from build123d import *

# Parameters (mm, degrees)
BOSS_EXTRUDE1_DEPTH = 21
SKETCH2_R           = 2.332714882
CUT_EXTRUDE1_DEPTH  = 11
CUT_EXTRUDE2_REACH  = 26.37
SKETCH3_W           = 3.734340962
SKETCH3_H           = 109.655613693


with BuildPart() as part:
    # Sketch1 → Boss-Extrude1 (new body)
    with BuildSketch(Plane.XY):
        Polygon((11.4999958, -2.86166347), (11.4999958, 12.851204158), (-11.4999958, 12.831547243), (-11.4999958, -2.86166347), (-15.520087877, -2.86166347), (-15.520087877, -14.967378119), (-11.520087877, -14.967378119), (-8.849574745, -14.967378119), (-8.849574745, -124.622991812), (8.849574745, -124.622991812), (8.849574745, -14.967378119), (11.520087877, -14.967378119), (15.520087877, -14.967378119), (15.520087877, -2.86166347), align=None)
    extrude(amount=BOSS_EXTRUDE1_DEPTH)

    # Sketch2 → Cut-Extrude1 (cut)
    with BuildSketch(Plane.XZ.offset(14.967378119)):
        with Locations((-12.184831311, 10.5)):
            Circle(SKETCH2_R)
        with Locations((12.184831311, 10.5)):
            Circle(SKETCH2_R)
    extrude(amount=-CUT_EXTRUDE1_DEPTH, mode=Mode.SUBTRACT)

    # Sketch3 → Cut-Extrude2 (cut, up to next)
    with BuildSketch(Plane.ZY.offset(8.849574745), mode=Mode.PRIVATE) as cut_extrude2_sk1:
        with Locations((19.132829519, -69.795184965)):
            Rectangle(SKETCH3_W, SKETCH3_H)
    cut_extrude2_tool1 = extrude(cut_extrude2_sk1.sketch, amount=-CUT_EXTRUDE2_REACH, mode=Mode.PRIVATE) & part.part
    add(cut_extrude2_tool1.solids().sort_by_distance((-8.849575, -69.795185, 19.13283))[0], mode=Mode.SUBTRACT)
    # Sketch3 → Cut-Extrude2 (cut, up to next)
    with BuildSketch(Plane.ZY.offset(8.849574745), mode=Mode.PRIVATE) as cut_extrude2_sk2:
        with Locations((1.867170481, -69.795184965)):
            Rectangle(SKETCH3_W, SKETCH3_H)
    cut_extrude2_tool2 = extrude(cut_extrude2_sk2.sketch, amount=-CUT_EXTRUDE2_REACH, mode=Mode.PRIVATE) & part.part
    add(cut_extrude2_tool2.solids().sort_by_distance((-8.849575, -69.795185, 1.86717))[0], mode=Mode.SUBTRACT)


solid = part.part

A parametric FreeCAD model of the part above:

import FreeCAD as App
import Part
import Sketcher
from FreeCAD import Vector

doc = App.newDocument("Part")
body = doc.addObject("PartDesign::Body", "Body")

# Sketch on XY plane
sketch1 = body.newObject("Sketcher::SketchObject", "Sketch")
sketch1.AttachmentSupport = (doc.getObject("XY_Plane"), [""])
sketch1.MapMode = "FlatFace"
sketch1.addGeometry(Part.LineSegment(Vector(11.5, -2.9, 0), Vector(11.5, 12.9, 0)), False)
sketch1.addGeometry(Part.LineSegment(Vector(11.5, 12.9, 0), Vector(-11.5, 12.8, 0)), False)
sketch1.addGeometry(Part.LineSegment(Vector(-11.5, 12.8, 0), Vector(-11.5, -2.9, 0)), False)
sketch1.addGeometry(Part.LineSegment(Vector(-11.5, -2.9, 0), Vector(-15.5, -2.9, 0)), False)
sketch1.addGeometry(Part.LineSegment(Vector(-15.5, -2.9, 0), Vector(-15.5, -15, 0)), False)
sketch1.addGeometry(Part.LineSegment(Vector(-15.5, -15, 0), Vector(-8.8, -15, 0)), False)
sketch1.addGeometry(Part.LineSegment(Vector(-8.8, -15, 0), Vector(-8.8, -124.6, 0)), False)
sketch1.addGeometry(Part.LineSegment(Vector(-8.8, -124.6, 0), Vector(8.8, -124.6, 0)), False)
sketch1.addGeometry(Part.LineSegment(Vector(8.8, -124.6, 0), Vector(8.8, -15, 0)), False)
sketch1.addGeometry(Part.LineSegment(Vector(8.8, -15, 0), Vector(15.5, -15, 0)), False)
sketch1.addGeometry(Part.LineSegment(Vector(15.5, -15, 0), Vector(15.5, -2.9, 0)), False)
sketch1.addGeometry(Part.LineSegment(Vector(15.5, -2.9, 0), Vector(11.5, -2.9, 0)), False)
sketch1.addConstraint(Sketcher.Constraint("Coincident", 0, 2, 1, 1))
sketch1.addConstraint(Sketcher.Constraint("Coincident", 1, 2, 2, 1))
sketch1.addConstraint(Sketcher.Constraint("Coincident", 2, 2, 3, 1))
sketch1.addConstraint(Sketcher.Constraint("Coincident", 3, 2, 4, 1))
sketch1.addConstraint(Sketcher.Constraint("Coincident", 4, 2, 5, 1))
sketch1.addConstraint(Sketcher.Constraint("Coincident", 5, 2, 6, 1))
sketch1.addConstraint(Sketcher.Constraint("Coincident", 6, 2, 7, 1))
sketch1.addConstraint(Sketcher.Constraint("Coincident", 7, 2, 8, 1))
sketch1.addConstraint(Sketcher.Constraint("Coincident", 8, 2, 9, 1))
sketch1.addConstraint(Sketcher.Constraint("Coincident", 9, 2, 10, 1))
sketch1.addConstraint(Sketcher.Constraint("Coincident", 10, 2, 11, 1))
sketch1.addConstraint(Sketcher.Constraint("Coincident", 11, 2, 0, 1))
sketch1.addConstraint(Sketcher.Constraint("Vertical", 0))
sketch1.addConstraint(Sketcher.Constraint("Vertical", 2))
sketch1.addConstraint(Sketcher.Constraint("Horizontal", 3))
sketch1.addConstraint(Sketcher.Constraint("Vertical", 4))
sketch1.addConstraint(Sketcher.Constraint("Horizontal", 5))
sketch1.addConstraint(Sketcher.Constraint("Vertical", 6))
sketch1.addConstraint(Sketcher.Constraint("Horizontal", 7))
sketch1.addConstraint(Sketcher.Constraint("Vertical", 8))
sketch1.addConstraint(Sketcher.Constraint("Horizontal", 9))
sketch1.addConstraint(Sketcher.Constraint("Vertical", 10))
sketch1.addConstraint(Sketcher.Constraint("Horizontal", 11))
sketch1.addConstraint(Sketcher.Constraint("Symmetric", 5, 2, 8, 2, -2))
sketch1.addConstraint(Sketcher.Constraint("Symmetric", 3, 2, 10, 2, -2))
sketch1.addConstraint(Sketcher.Constraint("Equal", 3, 11))
sketch1.addConstraint(Sketcher.Constraint("Distance", 1, 23.0))
sketch1.addConstraint(Sketcher.Constraint("DistanceX", 7, 1, 7, 2, 17.699149))
sketch1.addConstraint(Sketcher.Constraint("DistanceY", 2, 2, 2, 1, 15.693211))
sketch1.addConstraint(Sketcher.Constraint("DistanceX", 3, 2, 3, 1, 4.020092))
sketch1.addConstraint(Sketcher.Constraint("DistanceY", 0, 1, 0, 2, 15.712868))
sketch1.addConstraint(Sketcher.Constraint("DistanceY", 4, 2, 4, 1, 12.105715))
sketch1.addConstraint(Sketcher.Constraint("DistanceY", 6, 2, 6, 1, 109.655614))
sketch1.addConstraint(Sketcher.Constraint("DistanceY", 4, 2, -1, 1, 14.967378))
pad1 = body.newObject("PartDesign::Pad", "Pad")
pad1.Profile = sketch1
pad1.Length = 21

# Sketch on XZ plane
sketch2 = body.newObject("Sketcher::SketchObject", "Sketch001")
sketch2.AttachmentSupport = (doc.getObject("XZ_Plane"), [""])
sketch2.MapMode = "FlatFace"
sketch2.AttachmentOffset = App.Placement(Vector(0, 0, 14.967378), App.Rotation())
sketch2.addGeometry(Part.Circle(Vector(-12.2, 10.5, 0), Vector(0, 0, 1), 2.3), False)
sketch2.addGeometry(Part.Circle(Vector(12.2, 10.5, 0), Vector(0, 0, 1), 2.3), False)
sketch2.addConstraint(Sketcher.Constraint("Equal", 0, 1))
sketch2.addConstraint(Sketcher.Constraint("Symmetric", 0, 3, 1, 3, -2))
sketch2.addConstraint(Sketcher.Constraint("DistanceY", -1, 1, 0, 3, 10.5))
sketch2.addConstraint(Sketcher.Constraint("Diameter", 0, 4.66543))
sketch2.addConstraint(Sketcher.Constraint("DistanceX", 0, 3, -1, 1, 12.184831))
pocket1 = body.newObject("PartDesign::Pocket", "Pocket")
pocket1.Profile = sketch2
pocket1.Length = 11

# Sketch on YZ plane
sketch3 = body.newObject("Sketcher::SketchObject", "Sketch002")
sketch3.AttachmentSupport = (doc.getObject("YZ_Plane"), [""])
sketch3.MapMode = "FlatFace"
sketch3.AttachmentOffset = App.Placement(Vector(0, 0, -8.849575), App.Rotation())
sketch3.addGeometry(Part.LineSegment(Vector(-15, 17.3, 0), Vector(-124.6, 17.3, 0)), False)
sketch3.addGeometry(Part.LineSegment(Vector(-124.6, 17.3, 0), Vector(-124.6, 21, 0)), False)
sketch3.addGeometry(Part.LineSegment(Vector(-124.6, 21, 0), Vector(-15, 21, 0)), False)
sketch3.addGeometry(Part.LineSegment(Vector(-15, 21, 0), Vector(-15, 17.3, 0)), False)
sketch3.addConstraint(Sketcher.Constraint("Coincident", 0, 2, 1, 1))
sketch3.addConstraint(Sketcher.Constraint("Coincident", 1, 2, 2, 1))
sketch3.addConstraint(Sketcher.Constraint("Coincident", 2, 2, 3, 1))
sketch3.addConstraint(Sketcher.Constraint("Coincident", 3, 2, 0, 1))
sketch3.addConstraint(Sketcher.Constraint("Horizontal", 0))
sketch3.addConstraint(Sketcher.Constraint("Vertical", 1))
sketch3.addConstraint(Sketcher.Constraint("Horizontal", 2))
sketch3.addConstraint(Sketcher.Constraint("Vertical", 3))
sketch3.addConstraint(Sketcher.Constraint("DistanceY", -1, 1, 1, 2, 21.0))
sketch3.addConstraint(Sketcher.Constraint("DistanceY", 1, 1, 1, 2, 3.734341))
sketch3.addConstraint(Sketcher.Constraint("DistanceX", 0, 2, 0, 1, 109.655614))
sketch3.addConstraint(Sketcher.Constraint("DistanceX", 0, 2, -1, 1, 124.622992))
pocket2 = body.newObject("PartDesign::Pocket", "Pocket001")
pocket2.Profile = sketch3
pocket2.Type = "UpToFirst"
pocket2.Reversed = True

# Sketch on YZ plane
sketch4 = body.newObject("Sketcher::SketchObject", "Sketch003")
sketch4.AttachmentSupport = (doc.getObject("YZ_Plane"), [""])
sketch4.MapMode = "FlatFace"
sketch4.AttachmentOffset = App.Placement(Vector(0, 0, -8.849575), App.Rotation())
sketch4.addGeometry(Part.LineSegment(Vector(-15, 0, 0), Vector(-124.6, 0, 0)), False)
sketch4.addGeometry(Part.LineSegment(Vector(-124.6, 0, 0), Vector(-124.6, 3.7, 0)), False)
sketch4.addGeometry(Part.LineSegment(Vector(-124.6, 3.7, 0), Vector(-15, 3.7, 0)), False)
sketch4.addGeometry(Part.LineSegment(Vector(-15, 3.7, 0), Vector(-15, 0, 0)), False)
sketch4.addConstraint(Sketcher.Constraint("Coincident", 0, 2, 1, 1))
sketch4.addConstraint(Sketcher.Constraint("Coincident", 1, 2, 2, 1))
sketch4.addConstraint(Sketcher.Constraint("Coincident", 2, 2, 3, 1))
sketch4.addConstraint(Sketcher.Constraint("Coincident", 3, 2, 0, 1))
sketch4.addConstraint(Sketcher.Constraint("Horizontal", 0))
sketch4.addConstraint(Sketcher.Constraint("Vertical", 1))
sketch4.addConstraint(Sketcher.Constraint("Horizontal", 2))
sketch4.addConstraint(Sketcher.Constraint("Vertical", 3))
sketch4.addConstraint(Sketcher.Constraint("PointOnObject", 0, 2, -1))
sketch4.addConstraint(Sketcher.Constraint("DistanceY", 1, 1, 1, 2, 3.734341))
sketch4.addConstraint(Sketcher.Constraint("DistanceX", 0, 2, 0, 1, 109.655614))
sketch4.addConstraint(Sketcher.Constraint("DistanceX", 0, 2, -1, 1, 124.622992))
pocket3 = body.newObject("PartDesign::Pocket", "Pocket002")
pocket3.Profile = sketch4
pocket3.Type = "UpToFirst"
pocket3.Reversed = True

doc.recompute()
